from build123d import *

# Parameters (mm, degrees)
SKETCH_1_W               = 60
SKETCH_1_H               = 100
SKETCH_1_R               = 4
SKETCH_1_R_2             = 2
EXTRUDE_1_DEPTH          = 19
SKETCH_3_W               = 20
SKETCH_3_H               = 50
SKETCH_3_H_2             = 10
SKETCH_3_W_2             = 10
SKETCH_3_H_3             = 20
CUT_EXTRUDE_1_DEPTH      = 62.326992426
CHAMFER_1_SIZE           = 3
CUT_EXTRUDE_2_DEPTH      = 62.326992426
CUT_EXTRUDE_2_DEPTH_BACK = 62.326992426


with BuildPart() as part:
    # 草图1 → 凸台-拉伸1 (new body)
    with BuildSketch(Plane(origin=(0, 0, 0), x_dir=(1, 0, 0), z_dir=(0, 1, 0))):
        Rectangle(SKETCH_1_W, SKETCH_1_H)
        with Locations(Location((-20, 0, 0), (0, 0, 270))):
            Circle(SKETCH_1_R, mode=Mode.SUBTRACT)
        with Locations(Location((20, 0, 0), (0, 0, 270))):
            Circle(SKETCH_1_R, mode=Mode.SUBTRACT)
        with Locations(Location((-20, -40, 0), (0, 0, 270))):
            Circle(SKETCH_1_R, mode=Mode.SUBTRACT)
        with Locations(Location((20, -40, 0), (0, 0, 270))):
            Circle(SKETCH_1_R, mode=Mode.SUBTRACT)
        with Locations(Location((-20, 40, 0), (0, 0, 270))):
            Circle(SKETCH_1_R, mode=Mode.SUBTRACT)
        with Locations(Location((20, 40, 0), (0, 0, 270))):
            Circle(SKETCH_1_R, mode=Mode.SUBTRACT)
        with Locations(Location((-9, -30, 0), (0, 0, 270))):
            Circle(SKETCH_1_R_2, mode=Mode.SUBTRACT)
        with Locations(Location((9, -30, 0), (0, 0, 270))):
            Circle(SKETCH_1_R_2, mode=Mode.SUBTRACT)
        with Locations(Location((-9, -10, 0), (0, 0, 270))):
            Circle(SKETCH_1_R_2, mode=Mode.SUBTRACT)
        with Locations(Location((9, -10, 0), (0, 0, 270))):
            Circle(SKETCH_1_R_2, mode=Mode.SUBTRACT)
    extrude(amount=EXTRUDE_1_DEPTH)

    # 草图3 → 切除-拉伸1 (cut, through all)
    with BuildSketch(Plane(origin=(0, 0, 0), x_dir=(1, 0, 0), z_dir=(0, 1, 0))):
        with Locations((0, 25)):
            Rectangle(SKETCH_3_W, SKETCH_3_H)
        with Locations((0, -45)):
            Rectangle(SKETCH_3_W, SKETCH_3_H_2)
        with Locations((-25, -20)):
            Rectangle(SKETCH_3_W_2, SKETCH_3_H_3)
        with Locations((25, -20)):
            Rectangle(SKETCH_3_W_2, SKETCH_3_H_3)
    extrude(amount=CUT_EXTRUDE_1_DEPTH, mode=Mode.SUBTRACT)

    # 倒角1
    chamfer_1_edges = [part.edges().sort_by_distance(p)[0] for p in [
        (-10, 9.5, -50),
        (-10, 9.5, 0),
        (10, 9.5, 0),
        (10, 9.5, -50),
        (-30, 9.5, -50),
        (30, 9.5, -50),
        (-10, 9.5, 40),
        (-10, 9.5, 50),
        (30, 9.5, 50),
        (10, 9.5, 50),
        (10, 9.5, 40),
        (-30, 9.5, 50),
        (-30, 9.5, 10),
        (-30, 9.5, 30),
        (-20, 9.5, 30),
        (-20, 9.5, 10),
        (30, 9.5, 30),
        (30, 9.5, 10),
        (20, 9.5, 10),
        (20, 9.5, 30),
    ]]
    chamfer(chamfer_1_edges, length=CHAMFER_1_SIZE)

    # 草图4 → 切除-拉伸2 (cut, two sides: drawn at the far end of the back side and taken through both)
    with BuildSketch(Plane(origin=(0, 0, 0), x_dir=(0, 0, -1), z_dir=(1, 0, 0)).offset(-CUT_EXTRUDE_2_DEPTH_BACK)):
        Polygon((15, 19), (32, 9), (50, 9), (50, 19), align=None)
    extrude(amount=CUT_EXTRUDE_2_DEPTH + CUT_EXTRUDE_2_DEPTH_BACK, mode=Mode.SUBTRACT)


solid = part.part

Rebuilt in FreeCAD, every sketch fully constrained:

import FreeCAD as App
import Part
import Sketcher
Q = App.Units.Quantity


def edges_at(feature, points):
    """Names of the edges that pass closest to the given points."""
    edges = feature.Shape.Edges
    near = lambda p: min(range(len(edges)), key=lambda i: edges[i].distToShape(Part.Vertex(*p))[0])
    return sorted({f"Edge{near(p) + 1}" for p in points})

doc = App.newDocument("Part")
body = doc.addObject("PartDesign::Body", "Body")

# Sketch on XZ plane
sketch1 = doc.addObject("Sketcher::SketchObject", "Sketch")
body.addObject(sketch1)
sketch1.AttachmentSupport = (doc.XZ_Plane, [""])
sketch1.MapMode = "FlatFace"
sketch1.addGeometry([
    Part.LineSegment(App.Vector(-30, -50, 0), App.Vector(-30, 50, 0)),  # 0
    Part.LineSegment(App.Vector(-30, 50, 0), App.Vector(30, 50, 0)),  # 1
    Part.LineSegment(App.Vector(30, 50, 0), App.Vector(30, -50, 0)),  # 2
    Part.LineSegment(App.Vector(30, -50, 0), App.Vector(-30, -50, 0)),  # 3
    Part.Circle(App.Vector(-20, 40, 0), App.Vector(0, 0, 1), 4),  # 4
    Part.Circle(App.Vector(-9, 30, 0), App.Vector(0, 0, 1), 2),  # 5
    Part.Circle(App.Vector(-9, 10, 0), App.Vector(0, 0, 1), 2),  # 6
    Part.Circle(App.Vector(9, 30, 0), App.Vector(0, 0, 1), 2),  # 7
    Part.Circle(App.Vector(20, 40, 0), App.Vector(0, 0, 1), 4),  # 8
    Part.Circle(App.Vector(9, 10, 0), App.Vector(0, 0, 1), 2),  # 9
    Part.Circle(App.Vector(-20, 0, 0), App.Vector(0, 0, 1), 4),  # 10
    Part.Circle(App.Vector(-20, -40, 0), App.Vector(0, 0, 1), 4),  # 11
    Part.Circle(App.Vector(20, 0, 0), App.Vector(0, 0, 1), 4),  # 12
    Part.Circle(App.Vector(20, -40, 0), App.Vector(0, 0, 1), 4),  # 13
], False)
sketch1.addConstraint([
    Sketcher.Constraint("Coincident", 0, 2, 1, 1),
    Sketcher.Constraint("Coincident", 1, 2, 2, 1),
    Sketcher.Constraint("Coincident", 2, 2, 3, 1),
    Sketcher.Constraint("Coincident", 3, 2, 0, 1),
    Sketcher.Constraint("Vertical", 0),
    Sketcher.Constraint("Horizontal", 1),
    Sketcher.Constraint("Vertical", 2),
    Sketcher.Constraint("Horizontal", 3),
    Sketcher.Constraint("Equal", 5, 6),
    Sketcher.Constraint("Equal", 6, 7),
    Sketcher.Constraint("Equal", 4, 8),
    Sketcher.Constraint("Equal", 7, 9),
    Sketcher.Constraint("Equal", 8, 10),
    Sketcher.Constraint("Equal", 10, 11),
    Sketcher.Constraint("Equal", 11, 12),
    Sketcher.Constraint("Equal", 12, 13),
    Sketcher.Constraint("Symmetric", 8, 3, 11, 3, -1, 1),
    Sketcher.Constraint("Symmetric", 10, 3, 12, 3, -1, 1),
    Sketcher.Constraint("Symmetric", 4, 3, 13, 3, -1, 1),
    Sketcher.Constraint("Symmetric", 0, 2, 2, 2, -1, 1),
    Sketcher.Constraint("Symmetric", 5, 3, 7, 3, -2),
    Sketcher.Constraint("Symmetric", 4, 3, 8, 3, -2),
    Sketcher.Constraint("Symmetric", 6, 3, 9, 3, -2),
    Sketcher.Constraint("PointOnObject", 10, 3, -1),
    Sketcher.Constraint("Vertical", 5, 3, 6, 3),
    Sketcher.Constraint("Vertical", 4, 3, 10, 3),
    Sketcher.Constraint("Diameter", 4, Q("8 mm")),
    Sketcher.Constraint("Diameter", 5, Q("4 mm")),
    Sketcher.Constraint("DistanceX", 1, 1, 1, 2, Q("60 mm")),
    Sketcher.Constraint("DistanceY", 0, 1, 0, 2, Q("100 mm")),
    Sketcher.Constraint("DistanceX", 4, 3, -1, 1, Q("20 mm")),
    Sketcher.Constraint("DistanceY", -1, 1, 4, 3, Q("40 mm")),
    Sketcher.Constraint("DistanceX", 5, 3, -1, 1, Q("9 mm")),
    Sketcher.Constraint("DistanceY", -1, 1, 5, 3, Q("30 mm")),
    Sketcher.Constraint("DistanceY", -1, 1, 6, 3, Q("10 mm")),
])
pad1 = doc.addObject("PartDesign::Pad", "Pad")
body.addObject(pad1)
pad1.Profile = sketch1
pad1.Length = 19
pad1.Reversed = True

# Sketch on XZ plane
sketch2 = doc.addObject("Sketcher::SketchObject", "Sketch001")
body.addObject(sketch2)
sketch2.AttachmentSupport = (doc.XZ_Plane, [""])
sketch2.MapMode = "FlatFace"
sketch2.addGeometry([
    Part.LineSegment(App.Vector(-10, -50, 0), App.Vector(-10, 0, 0)),  # 0
    Part.LineSegment(App.Vector(-10, 0, 0), App.Vector(10, 0, 0)),  # 1
    Part.LineSegment(App.Vector(10, 0, 0), App.Vector(10, -50, 0)),  # 2
    Part.LineSegment(App.Vector(10, -50, 0), App.Vector(-10, -50, 0)),  # 3
    Part.LineSegment(App.Vector(-10, 40, 0), App.Vector(-10, 50, 0)),  # 4
    Part.LineSegment(App.Vector(-10, 50, 0), App.Vector(10, 50, 0)),  # 5
    Part.LineSegment(App.Vector(10, 50, 0), App.Vector(10, 40, 0)),  # 6
    Part.LineSegment(App.Vector(10, 40, 0), App.Vector(-10, 40, 0)),  # 7
    Part.LineSegment(App.Vector(-30, 10, 0), App.Vector(-30, 30, 0)),  # 8
    Part.LineSegment(App.Vector(-30, 30, 0), App.Vector(-20, 30, 0)),  # 9
    Part.LineSegment(App.Vector(-20, 30, 0), App.Vector(-20, 10, 0)),  # 10
    Part.LineSegment(App.Vector(-20, 10, 0), App.Vector(-30, 10, 0)),  # 11
    Part.LineSegment(App.Vector(20, 10, 0), App.Vector(20, 30, 0)),  # 12
    Part.LineSegment(App.Vector(20, 30, 0), App.Vector(30, 30, 0)),  # 13
    Part.LineSegment(App.Vector(30, 30, 0), App.Vector(30, 10, 0)),  # 14
    Part.LineSegment(App.Vector(30, 10, 0), App.Vector(20, 10, 0)),  # 15
], False)
sketch2.addConstraint([
    Sketcher.Constraint("Coincident", 0, 2, 1, 1),
    Sketcher.Constraint("Coincident", 1, 2, 2, 1),
    Sketcher.Constraint("Coincident", 2, 2, 3, 1),
    Sketcher.Constraint("Coincident", 3, 2, 0, 1),
    Sketcher.Constraint("Coincident", 4, 2, 5, 1),
    Sketcher.Constraint("Coincident", 5, 2, 6, 1),
    Sketcher.Constraint("Coincident", 6, 2, 7, 1),
    Sketcher.Constraint("Coincident", 7, 2, 4, 1),
    Sketcher.Constraint("Coincident", 8, 2, 9, 1),
    Sketcher.Constraint("Coincident", 9, 2, 10, 1),
    Sketcher.Constraint("Coincident", 10, 2, 11, 1),
    Sketcher.Constraint("Coincident", 11, 2, 8, 1),
    Sketcher.Constraint("Coincident", 12, 2, 13, 1),
    Sketcher.Constraint("Coincident", 13, 2, 14, 1),
    Sketcher.Constraint("Coincident", 14, 2, 15, 1),
    Sketcher.Constraint("Coincident", 15, 2, 12, 1),
    Sketcher.Constraint("Vertical", 0),
    Sketcher.Constraint("Horizontal", 1),
    Sketcher.Constraint("Vertical", 2),
    Sketcher.Constraint("Horizontal", 3),
    Sketcher.Constraint("Vertical", 4),
    Sketcher.Constraint("Horizontal", 5),
    Sketcher.Constraint("Vertical", 6),
    Sketcher.Constraint("Horizontal", 7),
    Sketcher.Constraint("Vertical", 8),
    Sketcher.Constraint("Horizontal", 9),
    Sketcher.Constraint("Vertical", 10),
    Sketcher.Constraint("Horizontal", 11),
    Sketcher.Constraint("Vertical", 12),
    Sketcher.Constraint("Horizontal", 13),
    Sketcher.Constraint("Vertical", 14),
    Sketcher.Constraint("Horizontal", 15),
    Sketcher.Constraint("Symmetric", 0, 2, 1, 2, -1, 1),
    Sketcher.Constraint("Symmetric", 2, 2, 4, 2, -1, 1),
    Sketcher.Constraint("Symmetric", 9, 2, 12, 2, -2),
    Sketcher.Constraint("Symmetric", 11, 2, 14, 2, -2),
    Sketcher.Constraint("Vertical", 2, 2, 5, 2),
    Sketcher.Constraint("Equal", 15, 4),
    Sketcher.Constraint("Equal", 7, 8),
    Sketcher.Constraint("DistanceX", 1, 1, 1, 2, Q("20 mm")),
    Sketcher.Constraint("DistanceX", 9, 1, 9, 2, Q("10 mm")),
    Sketcher.Constraint("DistanceY", 0, 1, 0, 2, Q("50 mm")),
    Sketcher.Constraint("DistanceX", 8, 2, -1, 1, Q("30 mm")),
    Sketcher.Constraint("DistanceY", -1, 1, 8, 2, Q("30 mm")),
])
pocket1 = doc.addObject("PartDesign::Pocket", "Pocket")
body.addObject(pocket1)
pocket1.Profile = sketch2
pocket1.Type = "ThroughAll"
doc.recompute()

chamfer = doc.addObject("PartDesign::Chamfer", "Chamfer")
body.addObject(chamfer)
chamfer.Base = (pocket1, edges_at(pocket1, [
    (-10, 9.5, -50),
    (-10, 9.5, 0),
    (10, 9.5, 0),
    (10, 9.5, -50),
    (-30, 9.5, -50),
    (30, 9.5, -50),
    (-10, 9.5, 40),
    (-10, 9.5, 50),
    (30, 9.5, 50),
    (10, 9.5, 50),
    (10, 9.5, 40),
    (-30, 9.5, 50),
    (-30, 9.5, 10),
    (-30, 9.5, 30),
    (-20, 9.5, 30),
    (-20, 9.5, 10),
    (30, 9.5, 30),
    (30, 9.5, 10),
    (20, 9.5, 10),
    (20, 9.5, 30),
]))
chamfer.Size = 3

# Sketch on YZ plane
sketch3 = doc.addObject("Sketcher::SketchObject", "Sketch002")
body.addObject(sketch3)
sketch3.AttachmentSupport = (doc.YZ_Plane, [""])
sketch3.MapMode = "FlatFace"
sketch3.addGeometry([
    Part.LineSegment(App.Vector(19, -15, 0), App.Vector(9, -32, 0)),
    Part.LineSegment(App.Vector(9, -32, 0), App.Vector(9, -50, 0)),
    Part.LineSegment(App.Vector(9, -50, 0), App.Vector(19, -50, 0)),
    Part.LineSegment(App.Vector(19, -50, 0), App.Vector(19, -15, 0)),
], False)
sketch3.addConstraint([
    Sketcher.Constraint("Coincident", 0, 2, 1, 1),
    Sketcher.Constraint("Coincident", 1, 2, 2, 1),
    Sketcher.Constraint("Coincident", 2, 2, 3, 1),
    Sketcher.Constraint("Coincident", 3, 2, 0, 1),
    Sketcher.Constraint("Vertical", 1),
    Sketcher.Constraint("Horizontal", 2),
    Sketcher.Constraint("Vertical", 3),
    Sketcher.Constraint("DistanceX", 2, 1, 2, 2, Q("10 mm")),
    Sketcher.Constraint("DistanceY", 1, 2, 1, 1, Q("18 mm")),
    Sketcher.Constraint("DistanceY", 3, 1, 3, 2, Q("35 mm")),
    Sketcher.Constraint("DistanceX", -1, 1, 0, 2, Q("9 mm")),
    Sketcher.Constraint("DistanceY", 0, 2, -1, 1, Q("32 mm")),
])
pocket2 = doc.addObject("PartDesign::Pocket", "Pocket001")
body.addObject(pocket2)
pocket2.Profile = sketch3
pocket2.Type = "ThroughAll"
pocket2.Midplane = True

doc.recompute()
